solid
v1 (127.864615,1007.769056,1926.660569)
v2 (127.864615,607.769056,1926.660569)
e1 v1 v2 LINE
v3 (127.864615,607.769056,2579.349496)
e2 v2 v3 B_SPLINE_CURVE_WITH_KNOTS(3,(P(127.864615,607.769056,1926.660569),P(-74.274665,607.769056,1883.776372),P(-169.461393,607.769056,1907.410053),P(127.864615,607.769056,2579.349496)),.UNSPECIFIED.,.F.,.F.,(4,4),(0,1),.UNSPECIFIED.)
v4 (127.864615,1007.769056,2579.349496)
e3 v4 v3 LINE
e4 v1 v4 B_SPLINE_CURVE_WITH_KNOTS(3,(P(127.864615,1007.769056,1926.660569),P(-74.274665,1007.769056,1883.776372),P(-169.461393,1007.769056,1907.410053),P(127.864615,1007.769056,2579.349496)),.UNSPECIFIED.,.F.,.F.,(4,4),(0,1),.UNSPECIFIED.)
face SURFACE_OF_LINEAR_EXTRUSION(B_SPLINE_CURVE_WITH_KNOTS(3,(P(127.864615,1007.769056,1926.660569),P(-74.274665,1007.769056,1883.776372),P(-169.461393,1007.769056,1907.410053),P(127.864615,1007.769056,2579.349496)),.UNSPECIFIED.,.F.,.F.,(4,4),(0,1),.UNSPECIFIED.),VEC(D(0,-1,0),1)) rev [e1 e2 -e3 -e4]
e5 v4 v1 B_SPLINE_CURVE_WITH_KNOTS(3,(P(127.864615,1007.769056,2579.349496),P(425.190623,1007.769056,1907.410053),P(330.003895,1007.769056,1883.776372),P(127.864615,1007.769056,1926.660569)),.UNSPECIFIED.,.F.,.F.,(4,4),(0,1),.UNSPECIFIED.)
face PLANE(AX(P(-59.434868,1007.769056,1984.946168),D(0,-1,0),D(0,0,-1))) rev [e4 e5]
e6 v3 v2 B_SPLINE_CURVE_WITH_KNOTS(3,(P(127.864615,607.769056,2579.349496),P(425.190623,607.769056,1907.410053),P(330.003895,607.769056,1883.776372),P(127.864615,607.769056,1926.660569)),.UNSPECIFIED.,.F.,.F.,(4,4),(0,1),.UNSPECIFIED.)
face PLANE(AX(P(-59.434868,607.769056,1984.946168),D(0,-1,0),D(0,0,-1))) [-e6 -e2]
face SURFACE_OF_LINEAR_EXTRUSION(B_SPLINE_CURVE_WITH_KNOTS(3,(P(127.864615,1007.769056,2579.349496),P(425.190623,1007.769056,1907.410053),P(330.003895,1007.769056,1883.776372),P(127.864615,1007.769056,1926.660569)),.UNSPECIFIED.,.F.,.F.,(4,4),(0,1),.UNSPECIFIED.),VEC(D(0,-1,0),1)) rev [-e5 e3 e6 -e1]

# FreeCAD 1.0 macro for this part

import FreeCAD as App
import Part
import Sketcher

V = App.Vector

doc = App.newDocument("Part")
body = doc.addObject("PartDesign::Body", "Body")

# Sketch on XZ plane
sketch1 = body.newObject("Sketcher::SketchObject", "Sketch")
sketch1.AttachmentSupport = (doc.getObject("XZ_Plane"), [""])
sketch1.MapMode = "FlatFace"
sketch1.AttachmentOffset = App.Placement(V(0, 0, -607.769056), App.Rotation())
sketch1.addGeometry([
    Part.BSplineCurve([V(127.864615, 1926.660569, 0), V(330.003895, 1883.776372, 0), V(425.190623, 1907.410053, 0), V(127.864615, 2579.349496, 0)], [4, 4], [0, 1], False, 3, [1, 1, 1, 1], False),
    Part.BSplineCurve([V(127.864615, 1926.660569, 0), V(-74.274665, 1883.776372, 0), V(-169.461393, 1907.410053, 0), V(127.864615, 2579.349496, 0)], [4, 4], [0, 1], False, 3, [1, 1, 1, 1], False),
], False)
sketch1.addConstraint([
    Sketcher.Constraint("Block", 0),
    Sketcher.Constraint("Block", 1),
])
pad1 = body.newObject("PartDesign::Pad", "Pad")
pad1.Profile = sketch1
pad1.Length = 400
pad1.Reversed = True

doc.recompute()
